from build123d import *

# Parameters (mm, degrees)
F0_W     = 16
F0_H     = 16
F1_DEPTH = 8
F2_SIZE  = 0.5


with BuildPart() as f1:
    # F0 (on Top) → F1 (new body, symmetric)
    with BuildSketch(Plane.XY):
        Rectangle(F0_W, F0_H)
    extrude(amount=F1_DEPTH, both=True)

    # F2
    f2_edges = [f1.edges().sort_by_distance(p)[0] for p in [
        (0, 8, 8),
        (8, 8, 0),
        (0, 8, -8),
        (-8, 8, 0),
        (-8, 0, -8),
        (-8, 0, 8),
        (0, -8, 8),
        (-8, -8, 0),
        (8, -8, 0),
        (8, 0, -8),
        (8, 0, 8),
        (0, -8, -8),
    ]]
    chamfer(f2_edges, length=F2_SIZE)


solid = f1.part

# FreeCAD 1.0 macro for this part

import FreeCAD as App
import Part
import Sketcher
from FreeCAD import Vector
Q = App.Units.Quantity


def add_polygon(sketch, points):
    """Adds a closed chain of lines whose ends are joined by coincident constraints."""
    first, n = sketch.GeometryCount, len(points)
    for a, b in zip(points, points[1:] + points[:1]):
        sketch.addGeometry(Part.LineSegment(App.Vector(*a, 0), App.Vector(*b, 0)), False)
    for i in range(n):
        sketch.addConstraint(Sketcher.Constraint("Coincident", first + i, 2, first + (i + 1) % n, 1))

doc = App.newDocument("Part")
body = doc.addObject("PartDesign::Body", "Body")

# Sketch on XY plane
sketch1 = body.newObject("Sketcher::SketchObject", "Sketch")
sketch1.AttachmentSupport = (doc.getObject("XY_Plane"), [""])
sketch1.MapMode = "FlatFace"
add_polygon(sketch1, [(-8, 8), (-8, -8), (8, -8), (8, 8)])  # lines 0-3
sketch1.addConstraint([
    Sketcher.Constraint("Vertical", 0),
    Sketcher.Constraint("Horizontal", 1),
    Sketcher.Constraint("Vertical", 2),
    Sketcher.Constraint("Horizontal", 3),
    Sketcher.Constraint("Symmetric", 0, 2, 2, 2, -1, 1),
    Sketcher.Constraint("Equal", 3, 0),
    Sketcher.Constraint("DistanceX", 1, 1, 1, 2, Q("16 mm")),
])
pad1 = body.newObject("PartDesign::Pad", "Pad")
pad1.Profile = sketch1
pad1.Length = 16
pad1.Midplane = True
doc.recompute()

chamfer = body.newObject("PartDesign::Chamfer", "Chamfer")
chamfer.Base = (pad1, ["Edge1"])
chamfer.UseAllEdges = True
chamfer.Size = 0.5

doc.recompute()
